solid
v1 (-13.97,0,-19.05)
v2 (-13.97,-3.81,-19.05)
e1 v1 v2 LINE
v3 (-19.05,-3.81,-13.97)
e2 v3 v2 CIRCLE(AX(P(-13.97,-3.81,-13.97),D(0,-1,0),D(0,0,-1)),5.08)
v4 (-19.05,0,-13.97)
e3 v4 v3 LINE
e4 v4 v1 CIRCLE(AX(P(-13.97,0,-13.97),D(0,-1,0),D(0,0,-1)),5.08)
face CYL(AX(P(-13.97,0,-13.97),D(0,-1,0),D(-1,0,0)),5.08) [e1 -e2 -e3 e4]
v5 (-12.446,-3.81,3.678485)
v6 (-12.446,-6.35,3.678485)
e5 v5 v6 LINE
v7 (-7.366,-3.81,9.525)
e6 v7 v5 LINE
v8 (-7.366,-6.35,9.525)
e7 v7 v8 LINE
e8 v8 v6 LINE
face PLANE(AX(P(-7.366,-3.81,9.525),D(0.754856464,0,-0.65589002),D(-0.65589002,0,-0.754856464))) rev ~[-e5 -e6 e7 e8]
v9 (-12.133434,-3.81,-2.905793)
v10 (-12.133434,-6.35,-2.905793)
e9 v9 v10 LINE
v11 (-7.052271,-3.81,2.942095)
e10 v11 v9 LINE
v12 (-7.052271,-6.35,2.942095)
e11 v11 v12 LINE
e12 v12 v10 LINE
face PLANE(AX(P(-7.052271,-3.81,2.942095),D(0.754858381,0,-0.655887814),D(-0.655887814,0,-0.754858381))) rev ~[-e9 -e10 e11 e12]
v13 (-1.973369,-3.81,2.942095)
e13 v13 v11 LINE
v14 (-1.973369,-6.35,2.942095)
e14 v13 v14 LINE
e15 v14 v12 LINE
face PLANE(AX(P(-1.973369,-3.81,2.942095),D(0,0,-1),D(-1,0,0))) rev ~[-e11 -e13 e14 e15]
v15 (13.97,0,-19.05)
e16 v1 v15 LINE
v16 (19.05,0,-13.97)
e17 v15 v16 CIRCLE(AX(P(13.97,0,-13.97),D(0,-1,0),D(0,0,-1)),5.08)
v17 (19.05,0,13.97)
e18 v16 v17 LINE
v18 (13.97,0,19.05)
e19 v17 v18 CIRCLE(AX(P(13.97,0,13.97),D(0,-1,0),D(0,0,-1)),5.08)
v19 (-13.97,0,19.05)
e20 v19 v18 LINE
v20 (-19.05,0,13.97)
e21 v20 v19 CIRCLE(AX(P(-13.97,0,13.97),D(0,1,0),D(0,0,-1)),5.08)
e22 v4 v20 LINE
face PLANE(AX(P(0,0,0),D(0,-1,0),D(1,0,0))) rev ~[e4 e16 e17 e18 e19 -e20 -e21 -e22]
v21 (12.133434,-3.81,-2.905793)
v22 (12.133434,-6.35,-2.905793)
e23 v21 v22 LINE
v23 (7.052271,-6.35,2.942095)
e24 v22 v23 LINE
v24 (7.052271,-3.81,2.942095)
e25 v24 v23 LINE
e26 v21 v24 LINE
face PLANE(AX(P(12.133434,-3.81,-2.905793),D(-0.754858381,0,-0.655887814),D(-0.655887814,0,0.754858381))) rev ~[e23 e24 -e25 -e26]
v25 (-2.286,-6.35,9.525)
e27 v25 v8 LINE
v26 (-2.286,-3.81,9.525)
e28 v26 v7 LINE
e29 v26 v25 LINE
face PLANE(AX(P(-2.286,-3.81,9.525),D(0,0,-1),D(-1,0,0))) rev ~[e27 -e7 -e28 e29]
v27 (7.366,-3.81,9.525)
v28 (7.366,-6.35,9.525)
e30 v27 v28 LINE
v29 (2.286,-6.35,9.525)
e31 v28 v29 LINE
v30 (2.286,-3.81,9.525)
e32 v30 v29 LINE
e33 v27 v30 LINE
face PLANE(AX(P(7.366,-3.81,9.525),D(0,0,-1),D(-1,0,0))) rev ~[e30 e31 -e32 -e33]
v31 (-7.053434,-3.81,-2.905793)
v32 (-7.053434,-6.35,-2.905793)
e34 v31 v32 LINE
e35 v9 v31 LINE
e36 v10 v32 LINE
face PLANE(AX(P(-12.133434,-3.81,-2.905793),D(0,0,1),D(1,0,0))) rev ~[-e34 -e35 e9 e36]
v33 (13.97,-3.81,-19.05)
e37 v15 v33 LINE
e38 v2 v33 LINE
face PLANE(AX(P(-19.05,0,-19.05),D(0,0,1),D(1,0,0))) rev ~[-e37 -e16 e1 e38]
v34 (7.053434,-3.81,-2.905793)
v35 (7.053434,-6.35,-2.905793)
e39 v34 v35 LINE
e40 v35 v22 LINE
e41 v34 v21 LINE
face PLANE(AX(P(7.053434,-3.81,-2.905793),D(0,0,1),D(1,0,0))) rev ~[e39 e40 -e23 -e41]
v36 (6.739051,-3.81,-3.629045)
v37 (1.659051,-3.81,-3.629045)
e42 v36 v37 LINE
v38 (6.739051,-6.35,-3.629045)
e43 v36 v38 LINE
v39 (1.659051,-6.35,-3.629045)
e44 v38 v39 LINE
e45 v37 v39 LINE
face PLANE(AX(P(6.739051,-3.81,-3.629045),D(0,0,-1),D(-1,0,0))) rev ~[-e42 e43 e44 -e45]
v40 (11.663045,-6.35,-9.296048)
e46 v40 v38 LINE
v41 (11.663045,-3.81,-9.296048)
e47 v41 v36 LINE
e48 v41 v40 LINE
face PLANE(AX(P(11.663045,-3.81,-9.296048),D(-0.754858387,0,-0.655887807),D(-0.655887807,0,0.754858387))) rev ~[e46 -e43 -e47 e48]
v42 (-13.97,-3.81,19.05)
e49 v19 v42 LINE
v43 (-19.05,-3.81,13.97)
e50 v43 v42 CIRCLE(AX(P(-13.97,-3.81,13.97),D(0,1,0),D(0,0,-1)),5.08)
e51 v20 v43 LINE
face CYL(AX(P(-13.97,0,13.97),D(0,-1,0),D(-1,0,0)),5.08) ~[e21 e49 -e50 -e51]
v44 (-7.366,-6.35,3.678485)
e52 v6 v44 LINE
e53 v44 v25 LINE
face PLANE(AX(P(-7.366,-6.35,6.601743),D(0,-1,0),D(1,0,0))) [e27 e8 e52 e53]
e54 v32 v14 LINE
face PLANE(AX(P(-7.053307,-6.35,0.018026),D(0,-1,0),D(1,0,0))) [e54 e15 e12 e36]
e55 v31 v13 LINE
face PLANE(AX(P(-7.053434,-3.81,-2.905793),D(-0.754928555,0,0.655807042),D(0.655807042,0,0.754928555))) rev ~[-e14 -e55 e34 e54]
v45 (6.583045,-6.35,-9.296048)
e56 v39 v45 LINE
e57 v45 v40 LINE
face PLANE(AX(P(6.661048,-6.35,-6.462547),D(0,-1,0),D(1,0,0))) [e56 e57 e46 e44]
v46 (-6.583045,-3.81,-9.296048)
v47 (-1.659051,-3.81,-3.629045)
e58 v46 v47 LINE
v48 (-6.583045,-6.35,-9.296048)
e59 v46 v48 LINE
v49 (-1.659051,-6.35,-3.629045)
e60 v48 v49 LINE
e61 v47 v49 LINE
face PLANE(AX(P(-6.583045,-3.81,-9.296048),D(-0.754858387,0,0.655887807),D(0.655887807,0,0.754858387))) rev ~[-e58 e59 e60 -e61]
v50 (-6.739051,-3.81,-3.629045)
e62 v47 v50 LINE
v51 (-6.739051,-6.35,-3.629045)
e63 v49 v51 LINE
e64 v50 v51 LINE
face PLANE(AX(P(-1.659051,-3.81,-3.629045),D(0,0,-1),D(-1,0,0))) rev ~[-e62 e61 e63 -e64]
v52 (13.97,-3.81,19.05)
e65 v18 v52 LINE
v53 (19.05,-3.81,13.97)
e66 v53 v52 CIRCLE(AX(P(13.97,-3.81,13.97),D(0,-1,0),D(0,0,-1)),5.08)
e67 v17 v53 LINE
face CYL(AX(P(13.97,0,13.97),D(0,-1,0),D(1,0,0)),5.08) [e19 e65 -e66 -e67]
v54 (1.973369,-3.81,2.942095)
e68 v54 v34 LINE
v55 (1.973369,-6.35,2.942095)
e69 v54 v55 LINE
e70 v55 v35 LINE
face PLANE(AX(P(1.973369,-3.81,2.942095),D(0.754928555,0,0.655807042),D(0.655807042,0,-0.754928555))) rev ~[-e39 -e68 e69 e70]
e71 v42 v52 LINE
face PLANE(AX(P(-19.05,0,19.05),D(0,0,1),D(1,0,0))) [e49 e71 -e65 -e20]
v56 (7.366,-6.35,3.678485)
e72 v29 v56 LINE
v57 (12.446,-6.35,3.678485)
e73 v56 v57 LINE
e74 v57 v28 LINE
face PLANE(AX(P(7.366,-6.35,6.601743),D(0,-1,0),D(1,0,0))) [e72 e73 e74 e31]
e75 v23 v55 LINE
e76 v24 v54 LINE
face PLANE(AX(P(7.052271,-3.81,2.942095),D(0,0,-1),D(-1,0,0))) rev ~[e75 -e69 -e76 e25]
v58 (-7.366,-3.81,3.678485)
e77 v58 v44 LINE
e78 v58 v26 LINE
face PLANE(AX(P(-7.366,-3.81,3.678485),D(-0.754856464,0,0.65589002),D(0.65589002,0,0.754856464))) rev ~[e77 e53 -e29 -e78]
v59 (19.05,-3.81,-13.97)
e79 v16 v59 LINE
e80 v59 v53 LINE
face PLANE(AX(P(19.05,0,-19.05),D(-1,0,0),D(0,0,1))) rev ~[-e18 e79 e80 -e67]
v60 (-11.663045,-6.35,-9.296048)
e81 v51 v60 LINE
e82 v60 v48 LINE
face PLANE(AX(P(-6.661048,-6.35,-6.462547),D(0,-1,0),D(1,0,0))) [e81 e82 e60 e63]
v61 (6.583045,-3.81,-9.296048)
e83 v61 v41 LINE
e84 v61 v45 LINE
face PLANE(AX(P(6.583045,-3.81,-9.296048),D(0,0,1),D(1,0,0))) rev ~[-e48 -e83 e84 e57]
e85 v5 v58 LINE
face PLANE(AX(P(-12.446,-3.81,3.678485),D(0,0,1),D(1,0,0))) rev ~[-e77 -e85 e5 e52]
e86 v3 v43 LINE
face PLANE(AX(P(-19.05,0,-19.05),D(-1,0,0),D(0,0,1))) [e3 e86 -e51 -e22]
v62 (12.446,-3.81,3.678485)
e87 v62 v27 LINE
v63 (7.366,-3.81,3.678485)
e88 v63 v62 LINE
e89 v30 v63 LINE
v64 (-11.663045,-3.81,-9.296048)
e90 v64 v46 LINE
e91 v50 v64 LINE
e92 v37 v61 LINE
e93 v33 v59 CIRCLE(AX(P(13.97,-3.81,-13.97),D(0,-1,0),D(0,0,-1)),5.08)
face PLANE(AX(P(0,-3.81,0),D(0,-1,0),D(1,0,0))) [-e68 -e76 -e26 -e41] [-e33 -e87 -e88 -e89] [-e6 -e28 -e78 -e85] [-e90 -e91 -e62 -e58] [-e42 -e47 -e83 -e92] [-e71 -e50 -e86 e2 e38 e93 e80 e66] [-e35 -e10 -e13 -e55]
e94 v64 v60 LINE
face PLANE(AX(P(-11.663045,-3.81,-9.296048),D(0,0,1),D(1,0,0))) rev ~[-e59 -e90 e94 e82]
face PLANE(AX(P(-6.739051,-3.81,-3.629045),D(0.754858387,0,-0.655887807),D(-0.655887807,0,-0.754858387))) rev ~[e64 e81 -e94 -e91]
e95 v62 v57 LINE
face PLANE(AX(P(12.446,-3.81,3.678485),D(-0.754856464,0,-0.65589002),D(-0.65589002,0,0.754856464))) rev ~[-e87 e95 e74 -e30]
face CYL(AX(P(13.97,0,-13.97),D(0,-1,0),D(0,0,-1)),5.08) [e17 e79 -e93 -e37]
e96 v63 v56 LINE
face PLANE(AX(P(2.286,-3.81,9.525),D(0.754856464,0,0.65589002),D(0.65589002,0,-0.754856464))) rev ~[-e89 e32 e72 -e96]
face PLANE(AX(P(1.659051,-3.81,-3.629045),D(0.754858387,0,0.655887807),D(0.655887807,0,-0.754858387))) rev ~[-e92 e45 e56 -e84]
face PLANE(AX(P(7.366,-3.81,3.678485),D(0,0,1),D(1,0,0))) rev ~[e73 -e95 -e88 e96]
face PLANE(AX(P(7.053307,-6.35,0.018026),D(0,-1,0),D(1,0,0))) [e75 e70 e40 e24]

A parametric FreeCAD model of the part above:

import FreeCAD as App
import Part
import Sketcher

V = App.Vector
Q = App.Units.Quantity


def edges_at(feature, points):
    """Names of the edges that pass closest to the given points."""
    edges = feature.Shape.Edges
    near = lambda p: min(range(len(edges)), key=lambda i: edges[i].distToShape(Part.Vertex(*p))[0])
    return sorted({f"Edge{near(p) + 1}" for p in points})


def add_polygon(sketch, points):
    """Adds a closed chain of lines whose ends are joined by coincident constraints."""
    first, n = sketch.GeometryCount, len(points)
    for a, b in zip(points, points[1:] + points[:1]):
        sketch.addGeometry(Part.LineSegment(App.Vector(*a, 0), App.Vector(*b, 0)), False)
    for i in range(n):
        sketch.addConstraint(Sketcher.Constraint("Coincident", first + i, 2, first + (i + 1) % n, 1))

doc = App.newDocument("Part")
params = doc.addObject("Spreadsheet::Sheet", "Params")
for row, (alias, value) in enumerate([
    ("sketch1_width", "1.5 in"),
    ("pad1_length", "0.15 in"),
    ("fillet_radius", "0.2 in"),
    ("sketch2_width", "0.2 in"),
    ("sketch2_length", "0.305 in"),
    ("pad2_length", "0.1 in"),
], start=1):
    params.set(f"A{row}", alias)
    params.set(f"B{row}", "=" + value)
    params.setAlias(f"B{row}", alias)

body = doc.addObject("PartDesign::Body", "Body")

# Sketch on XZ plane
sketch1 = body.newObject("Sketcher::SketchObject", "Sketch")
sketch1.AttachmentSupport = (doc.getObject("XZ_Plane"), [""])
sketch1.MapMode = "FlatFace"
add_polygon(sketch1, [(-19, 19), (-19, -19), (19, -19), (19, 19)])  # lines 0-3
sketch1.addConstraint(Sketcher.Constraint("Vertical", 0))
sketch1.addConstraint(Sketcher.Constraint("Horizontal", 1))
sketch1.addConstraint(Sketcher.Constraint("Vertical", 2))
sketch1.addConstraint(Sketcher.Constraint("Horizontal", 3))
sketch1.addConstraint(Sketcher.Constraint("Symmetric", 0, 2, 2, 2, -1, 1))
sketch1.addConstraint(Sketcher.Constraint("Equal", 3, 0))
sketch1.addConstraint(Sketcher.Constraint("DistanceX", 1, 1, 1, 2, Q("1.5 in")))
sketch1.setExpression("Constraints[10]", "Params.sketch1_width")
pad1 = body.newObject("PartDesign::Pad", "Pad")
pad1.Profile = sketch1
pad1.setExpression("Length", "Params.pad1_length")
doc.recompute()

fillet = body.newObject("PartDesign::Fillet", "Fillet")
fillet.Base = (pad1, edges_at(pad1, [
    (19.05, -1.905, 19.05),
    (-19.05, -1.905, 19.05),
    (-19.05, -1.905, -19.05),
    (19.05, -1.905, -19.05),
]))
fillet.setExpression("Radius", "Params.fillet_radius")

# Sketch on XZ plane
sketch2 = body.newObject("Sketcher::SketchObject", "Sketch001")
sketch2.AttachmentSupport = (doc.getObject("XZ_Plane"), [""])
sketch2.MapMode = "FlatFace"
sketch2.AttachmentOffset = App.Placement(V(0, 0, 0.15 * 25.4), App.Rotation())
add_polygon(sketch2, [(-7, 4), (-2, 10), (-7, 10), (-12, 4)])  # lines 0-3
add_polygon(sketch2, [(-2, 3), (-7, 3), (-12, -3), (-7, -3)])  # lines 4-7
add_polygon(sketch2, [(-2, -4), (-7, -4), (-12, -9), (-7, -9)])  # lines 8-11
add_polygon(sketch2, [(12, -9), (7, -4), (2, -4), (7, -9)])  # lines 12-15
add_polygon(sketch2, [(12, -3), (7, 3), (2, 3), (7, -3)])  # lines 16-19
add_polygon(sketch2, [(2, 10), (7, 4), (12, 4), (7, 10)])  # lines 20-23
sketch2.addConstraint(Sketcher.Constraint("Horizontal", 1))
sketch2.addConstraint(Sketcher.Constraint("Horizontal", 3))
sketch2.addConstraint(Sketcher.Constraint("Horizontal", 4))
sketch2.addConstraint(Sketcher.Constraint("Horizontal", 6))
sketch2.addConstraint(Sketcher.Constraint("Horizontal", 8))
sketch2.addConstraint(Sketcher.Constraint("Horizontal", 10))
sketch2.addConstraint(Sketcher.Constraint("Horizontal", 13))
sketch2.addConstraint(Sketcher.Constraint("Horizontal", 15))
sketch2.addConstraint(Sketcher.Constraint("Horizontal", 17))
sketch2.addConstraint(Sketcher.Constraint("Horizontal", 19))
sketch2.addConstraint(Sketcher.Constraint("Horizontal", 21))
sketch2.addConstraint(Sketcher.Constraint("Horizontal", 23))
sketch2.addConstraint(Sketcher.Constraint("Symmetric", 8, 2, 12, 2, -2))
sketch2.addConstraint(Sketcher.Constraint("Symmetric", 10, 2, 14, 2, -2))
sketch2.addConstraint(Sketcher.Constraint("Symmetric", 4, 2, 16, 2, -2))
sketch2.addConstraint(Sketcher.Constraint("Symmetric", 6, 2, 18, 2, -2))
sketch2.addConstraint(Sketcher.Constraint("Symmetric", 3, 2, 20, 2, -2))
sketch2.addConstraint(Sketcher.Constraint("Symmetric", 1, 2, 22, 2, -2))
sketch2.addConstraint(Sketcher.Constraint("Parallel", 0, 2))
sketch2.addConstraint(Sketcher.Constraint("Parallel", 5, 9))
sketch2.addConstraint(Sketcher.Constraint("Parallel", 9, 11))
sketch2.addConstraint(Sketcher.Constraint("Parallel", 12, 14))
sketch2.addConstraint(Sketcher.Constraint("Parallel", 14, 16))
sketch2.addConstraint(Sketcher.Constraint("Parallel", 20, 22))
sketch2.addConstraint(Sketcher.Constraint("Vertical", 1, 2, 3, 2))
sketch2.addConstraint(Sketcher.Constraint("Equal", 3, 6))
sketch2.addConstraint(Sketcher.Constraint("Equal", 6, 8))
sketch2.addConstraint(Sketcher.Constraint("Equal", 10, 13))
sketch2.addConstraint(Sketcher.Constraint("Equal", 4, 17))
sketch2.addConstraint(Sketcher.Constraint("Equal", 19, 21))
sketch2.addConstraint(Sketcher.Constraint("DistanceX", 1, 2, 1, 1, Q("0.2 in")))
sketch2.addConstraint(Sketcher.Constraint("DistanceX", 0, 2, -1, 1, Q("0.09 in")))
sketch2.addConstraint(Sketcher.Constraint("Distance", 5, Q("0.305 in")))
sketch2.addConstraint(Sketcher.Constraint("DistanceY", -1, 1, 0, 2, Q("0.375 in")))
sketch2.addConstraint(Sketcher.Constraint("Distance", 0, 7.745201))
sketch2.addConstraint(Sketcher.Constraint("Distance", 7, 7.74628))
sketch2.addConstraint(Sketcher.Constraint("DistanceX", 4, 2, -1, 1, 7.052271))
sketch2.addConstraint(Sketcher.Constraint("DistanceX", 8, 2, -1, 1, 6.739051))
sketch2.addConstraint(Sketcher.Constraint("DistanceY", 9, 2, -1, 1, 9.296048))
sketch2.addConstraint(Sketcher.Constraint("DistanceY", 4, 2, 3, 2, 0.73639))
sketch2.addConstraint(Sketcher.Constraint("DistanceY", 5, 2, 4, 2, 5.847888))
sketch2.addConstraint(Sketcher.Constraint("DistanceY", 8, 2, 4, 2, 6.57114))
sketch2.setExpression("Constraints[54]", "Params.sketch2_width")
sketch2.setExpression("Constraints[56]", "Params.sketch2_length")
pad2 = body.newObject("PartDesign::Pad", "Pad001")
pad2.Profile = sketch2
pad2.setExpression("Length", "Params.pad2_length")

doc.recompute()
